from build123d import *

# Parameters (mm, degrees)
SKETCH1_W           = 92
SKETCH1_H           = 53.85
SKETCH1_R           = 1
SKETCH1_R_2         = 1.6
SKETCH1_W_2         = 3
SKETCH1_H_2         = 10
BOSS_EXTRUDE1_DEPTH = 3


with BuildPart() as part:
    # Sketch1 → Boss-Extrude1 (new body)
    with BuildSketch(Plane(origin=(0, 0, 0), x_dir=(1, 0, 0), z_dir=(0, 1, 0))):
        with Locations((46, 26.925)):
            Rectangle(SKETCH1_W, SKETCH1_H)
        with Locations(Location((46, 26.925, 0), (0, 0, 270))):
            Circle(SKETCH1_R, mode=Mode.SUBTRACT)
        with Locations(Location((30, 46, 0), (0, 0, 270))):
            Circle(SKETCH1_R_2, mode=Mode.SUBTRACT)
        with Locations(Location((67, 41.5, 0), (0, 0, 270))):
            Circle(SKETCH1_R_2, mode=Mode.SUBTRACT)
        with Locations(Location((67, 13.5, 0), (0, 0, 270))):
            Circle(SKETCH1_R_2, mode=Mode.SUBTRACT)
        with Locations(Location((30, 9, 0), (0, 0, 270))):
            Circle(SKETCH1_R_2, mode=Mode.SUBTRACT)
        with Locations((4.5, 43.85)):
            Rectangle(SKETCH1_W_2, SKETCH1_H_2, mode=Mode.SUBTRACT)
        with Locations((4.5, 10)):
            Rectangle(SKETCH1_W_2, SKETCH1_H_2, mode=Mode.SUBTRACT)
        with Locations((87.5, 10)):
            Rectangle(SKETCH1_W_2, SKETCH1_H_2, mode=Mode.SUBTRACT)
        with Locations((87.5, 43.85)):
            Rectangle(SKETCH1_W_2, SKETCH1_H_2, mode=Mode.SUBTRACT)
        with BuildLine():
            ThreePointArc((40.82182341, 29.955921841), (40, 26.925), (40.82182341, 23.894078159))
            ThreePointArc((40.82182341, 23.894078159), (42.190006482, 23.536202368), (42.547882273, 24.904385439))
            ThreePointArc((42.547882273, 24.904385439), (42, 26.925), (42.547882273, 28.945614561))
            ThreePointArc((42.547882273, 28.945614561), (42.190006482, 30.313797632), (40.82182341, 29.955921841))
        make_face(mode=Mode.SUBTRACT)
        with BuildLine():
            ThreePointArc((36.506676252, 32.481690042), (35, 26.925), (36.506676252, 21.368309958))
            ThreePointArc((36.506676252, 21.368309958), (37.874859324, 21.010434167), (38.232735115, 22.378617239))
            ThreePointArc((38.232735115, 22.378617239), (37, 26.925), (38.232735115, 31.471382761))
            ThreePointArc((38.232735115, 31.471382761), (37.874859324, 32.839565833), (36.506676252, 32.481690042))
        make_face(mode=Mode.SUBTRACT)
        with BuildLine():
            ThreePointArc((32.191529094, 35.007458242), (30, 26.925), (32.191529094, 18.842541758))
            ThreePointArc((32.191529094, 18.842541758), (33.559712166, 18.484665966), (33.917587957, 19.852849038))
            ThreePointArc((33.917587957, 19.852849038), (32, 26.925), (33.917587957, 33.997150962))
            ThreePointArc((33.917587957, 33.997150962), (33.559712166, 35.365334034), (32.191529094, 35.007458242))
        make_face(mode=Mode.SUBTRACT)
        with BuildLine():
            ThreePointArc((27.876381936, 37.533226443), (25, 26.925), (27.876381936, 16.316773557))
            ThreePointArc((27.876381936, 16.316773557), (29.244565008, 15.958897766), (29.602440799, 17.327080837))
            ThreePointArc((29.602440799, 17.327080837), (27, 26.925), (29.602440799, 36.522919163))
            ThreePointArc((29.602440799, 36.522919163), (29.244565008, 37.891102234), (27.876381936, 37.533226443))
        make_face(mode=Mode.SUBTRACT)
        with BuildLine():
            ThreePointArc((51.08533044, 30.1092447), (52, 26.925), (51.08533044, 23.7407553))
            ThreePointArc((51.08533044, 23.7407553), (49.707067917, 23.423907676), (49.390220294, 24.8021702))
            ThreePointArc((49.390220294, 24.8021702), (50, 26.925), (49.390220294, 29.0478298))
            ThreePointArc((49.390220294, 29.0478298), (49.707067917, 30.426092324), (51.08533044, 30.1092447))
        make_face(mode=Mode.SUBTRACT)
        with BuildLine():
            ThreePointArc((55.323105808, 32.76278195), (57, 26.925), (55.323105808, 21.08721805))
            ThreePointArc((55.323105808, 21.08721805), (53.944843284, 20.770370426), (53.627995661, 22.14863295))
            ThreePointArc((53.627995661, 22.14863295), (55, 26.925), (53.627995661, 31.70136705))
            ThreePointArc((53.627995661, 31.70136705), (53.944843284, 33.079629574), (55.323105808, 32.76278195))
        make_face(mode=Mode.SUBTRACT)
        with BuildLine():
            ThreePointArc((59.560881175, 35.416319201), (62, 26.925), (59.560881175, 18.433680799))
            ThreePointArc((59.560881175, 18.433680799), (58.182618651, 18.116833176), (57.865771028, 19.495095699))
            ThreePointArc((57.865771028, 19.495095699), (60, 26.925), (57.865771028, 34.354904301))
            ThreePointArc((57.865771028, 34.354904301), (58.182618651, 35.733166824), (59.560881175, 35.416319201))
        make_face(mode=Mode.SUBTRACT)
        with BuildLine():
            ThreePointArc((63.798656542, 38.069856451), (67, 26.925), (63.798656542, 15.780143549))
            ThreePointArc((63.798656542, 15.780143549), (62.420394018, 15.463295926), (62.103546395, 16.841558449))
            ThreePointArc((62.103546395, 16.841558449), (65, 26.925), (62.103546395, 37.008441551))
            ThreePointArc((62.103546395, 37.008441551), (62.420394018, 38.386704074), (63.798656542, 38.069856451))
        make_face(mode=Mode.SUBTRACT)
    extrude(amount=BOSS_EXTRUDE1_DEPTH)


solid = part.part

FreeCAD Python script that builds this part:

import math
import FreeCAD as App
import Part
import Sketcher


def add_polygon(sketch, points):
    """Adds a closed chain of lines whose ends are joined by coincident constraints."""
    first, n = sketch.GeometryCount, len(points)
    for a, b in zip(points, points[1:] + points[:1]):
        sketch.addGeometry(Part.LineSegment(App.Vector(*a, 0), App.Vector(*b, 0)), False)
    for i in range(n):
        sketch.addConstraint(Sketcher.Constraint("Coincident", first + i, 2, first + (i + 1) % n, 1))

doc = App.newDocument("Part")
body = doc.addObject("PartDesign::Body", "Body")

# Sketch on XZ plane
sketch1 = doc.addObject("Sketcher::SketchObject", "Sketch")
body.addObject(sketch1)
sketch1.AttachmentSupport = (doc.XZ_Plane, [""])
sketch1.MapMode = "FlatFace"
add_polygon(sketch1, [(0, -53.85), (0, 0), (92, 0), (92, -53.85)])  # lines 0-3
add_polygon(sketch1, [(6, -5), (3, -5), (3, -15), (6, -15)])  # lines 4-7
sketch1.addGeometry(Part.Circle(App.Vector(30, -9, 0), App.Vector(0, 0, 1), 1.6), False)  # 8
sketch1.addGeometry(Part.ArcOfCircle(Part.Circle(App.Vector(46, -26.925, 0), App.Vector(0, 0, 1), 11), math.radians(149.658448), math.radians(210.341552)), False)  # 9
sketch1.addGeometry(Part.ArcOfCircle(Part.Circle(App.Vector(37.369706, -31.976536, 0), App.Vector(0, 0, 1), 1), math.radians(-149.658448), math.radians(30.341552)), False)  # 10
sketch1.addGeometry(Part.ArcOfCircle(Part.Circle(App.Vector(46, -26.925, 0), App.Vector(0, 0, 1), 9), math.radians(149.658448), math.radians(210.341552)), False)  # 11
sketch1.addGeometry(Part.ArcOfCircle(Part.Circle(App.Vector(37.369706, -21.873464, 0), App.Vector(0, 0, 1), 1), math.radians(-30.341552), math.radians(149.658448)), False)  # 12
sketch1.addGeometry(Part.Circle(App.Vector(67, -13.5, 0), App.Vector(0, 0, 1), 1.6), False)  # 13
add_polygon(sketch1, [(89, -5), (86, -5), (86, -15), (89, -15)])  # lines 14-17
sketch1.addGeometry(Part.ArcOfCircle(Part.Circle(App.Vector(46, -26.925, 0), App.Vector(0, 0, 1), 21), math.radians(149.658448), math.radians(210.341552)), False)  # 18
sketch1.addGeometry(Part.ArcOfCircle(Part.Circle(App.Vector(28.739411, -37.028073, 0), App.Vector(0, 0, 1), 1), math.radians(-149.658448), math.radians(30.341552)), False)  # 19
sketch1.addGeometry(Part.ArcOfCircle(Part.Circle(App.Vector(46, -26.925, 0), App.Vector(0, 0, 1), 19), math.radians(149.658448), math.radians(210.341552)), False)  # 20
sketch1.addGeometry(Part.ArcOfCircle(Part.Circle(App.Vector(28.739411, -16.821927, 0), App.Vector(0, 0, 1), 1), math.radians(-30.341552), math.radians(149.658448)), False)  # 21
sketch1.addGeometry(Part.ArcOfCircle(Part.Circle(App.Vector(46, -26.925, 0), App.Vector(0, 0, 1), 16), math.radians(149.658448), math.radians(210.341552)), False)  # 22
sketch1.addGeometry(Part.ArcOfCircle(Part.Circle(App.Vector(33.054559, -34.502305, 0), App.Vector(0, 0, 1), 1), math.radians(-149.658448), math.radians(30.341552)), False)  # 23
sketch1.addGeometry(Part.ArcOfCircle(Part.Circle(App.Vector(46, -26.925, 0), App.Vector(0, 0, 1), 14), math.radians(149.658448), math.radians(210.341552)), False)  # 24
sketch1.addGeometry(Part.ArcOfCircle(Part.Circle(App.Vector(33.054559, -19.347695, 0), App.Vector(0, 0, 1), 1), math.radians(-30.341552), math.radians(149.658448)), False)  # 25
sketch1.addGeometry(Part.ArcOfCircle(Part.Circle(App.Vector(46, -26.925, 0), App.Vector(0, 0, 1), 6), math.radians(149.658448), math.radians(210.341552)), False)  # 26
sketch1.addGeometry(Part.ArcOfCircle(Part.Circle(App.Vector(41.684853, -29.450768, 0), App.Vector(0, 0, 1), 1), math.radians(-149.658448), math.radians(30.341552)), False)  # 27
sketch1.addGeometry(Part.ArcOfCircle(Part.Circle(App.Vector(46, -26.925, 0), App.Vector(0, 0, 1), 4), math.radians(149.658448), math.radians(210.341552)), False)  # 28
sketch1.addGeometry(Part.ArcOfCircle(Part.Circle(App.Vector(41.684853, -24.399232, 0), App.Vector(0, 0, 1), 1), math.radians(-30.341552), math.radians(149.658448)), False)  # 29
add_polygon(sketch1, [(6, -38.85), (3, -38.85), (3, -48.85), (6, -48.85)])  # lines 30-33
sketch1.addGeometry(Part.Circle(App.Vector(30, -46, 0), App.Vector(0, 0, 1), 1.6), False)  # 34
sketch1.addGeometry(Part.Circle(App.Vector(46, -26.925, 0), App.Vector(0, 0, 1), 1), False)  # 35
sketch1.addGeometry(Part.ArcOfCircle(Part.Circle(App.Vector(50.237775, -29.578537, 0), App.Vector(0, 0, 1), 1), math.radians(147.946733), math.radians(327.946733)), False)  # 36
sketch1.addGeometry(Part.ArcOfCircle(Part.Circle(App.Vector(46, -26.925, 0), App.Vector(0, 0, 1), 6), math.radians(-32.053267), math.radians(32.053267)), False)  # 37
sketch1.addGeometry(Part.ArcOfCircle(Part.Circle(App.Vector(50.237775, -24.271463, 0), App.Vector(0, 0, 1), 1), math.radians(32.053267), math.radians(212.053267)), False)  # 38
sketch1.addGeometry(Part.ArcOfCircle(Part.Circle(App.Vector(46, -26.925, 0), App.Vector(0, 0, 1), 4), math.radians(-32.053267), math.radians(32.053267)), False)  # 39
sketch1.addGeometry(Part.ArcOfCircle(Part.Circle(App.Vector(54.475551, -32.232075, 0), App.Vector(0, 0, 1), 1), math.radians(147.946733), math.radians(327.946733)), False)  # 40
sketch1.addGeometry(Part.ArcOfCircle(Part.Circle(App.Vector(46, -26.925, 0), App.Vector(0, 0, 1), 11), math.radians(-32.053267), math.radians(32.053267)), False)  # 41
sketch1.addGeometry(Part.ArcOfCircle(Part.Circle(App.Vector(54.475551, -21.617925, 0), App.Vector(0, 0, 1), 1), math.radians(32.053267), math.radians(212.053267)), False)  # 42
sketch1.addGeometry(Part.ArcOfCircle(Part.Circle(App.Vector(46, -26.925, 0), App.Vector(0, 0, 1), 9), math.radians(-32.053267), math.radians(32.053267)), False)  # 43
sketch1.addGeometry(Part.ArcOfCircle(Part.Circle(App.Vector(58.713326, -34.885612, 0), App.Vector(0, 0, 1), 1), math.radians(147.946733), math.radians(327.946733)), False)  # 44
sketch1.addGeometry(Part.ArcOfCircle(Part.Circle(App.Vector(46, -26.925, 0), App.Vector(0, 0, 1), 16), math.radians(-32.053267), math.radians(32.053267)), False)  # 45
sketch1.addGeometry(Part.ArcOfCircle(Part.Circle(App.Vector(58.713326, -18.964388, 0), App.Vector(0, 0, 1), 1), math.radians(32.053267), math.radians(212.053267)), False)  # 46
sketch1.addGeometry(Part.ArcOfCircle(Part.Circle(App.Vector(46, -26.925, 0), App.Vector(0, 0, 1), 14), math.radians(-32.053267), math.radians(32.053267)), False)  # 47
sketch1.addGeometry(Part.ArcOfCircle(Part.Circle(App.Vector(62.951101, -37.539149, 0), App.Vector(0, 0, 1), 1), math.radians(147.946733), math.radians(327.946733)), False)  # 48
sketch1.addGeometry(Part.ArcOfCircle(Part.Circle(App.Vector(46, -26.925, 0), App.Vector(0, 0, 1), 21), math.radians(-32.053267), math.radians(32.053267)), False)  # 49
sketch1.addGeometry(Part.ArcOfCircle(Part.Circle(App.Vector(62.951101, -16.310851, 0), App.Vector(0, 0, 1), 1), math.radians(32.053267), math.radians(212.053267)), False)  # 50
sketch1.addGeometry(Part.ArcOfCircle(Part.Circle(App.Vector(46, -26.925, 0), App.Vector(0, 0, 1), 19), math.radians(-32.053267), math.radians(32.053267)), False)  # 51
sketch1.addGeometry(Part.Circle(App.Vector(67, -41.5, 0), App.Vector(0, 0, 1), 1.6), False)  # 52
add_polygon(sketch1, [(89, -38.85), (86, -38.85), (86, -48.85), (89, -48.85)])  # lines 53-56
sketch1.addConstraint([
    Sketcher.Constraint("Tangent", 9, 2, 10, 1),
    Sketcher.Constraint("Tangent", 10, 2, 11, 2),
    Sketcher.Constraint("Tangent", 11, 1, 12, 1),
    Sketcher.Constraint("Tangent", 12, 2, 9, 1),
    Sketcher.Constraint("Tangent", 18, 2, 19, 1),
    Sketcher.Constraint("Tangent", 19, 2, 20, 2),
    Sketcher.Constraint("Tangent", 20, 1, 21, 1),
    Sketcher.Constraint("Tangent", 21, 2, 18, 1),
    Sketcher.Constraint("Tangent", 22, 2, 23, 1),
    Sketcher.Constraint("Tangent", 23, 2, 24, 2),
    Sketcher.Constraint("Tangent", 24, 1, 25, 1),
    Sketcher.Constraint("Tangent", 25, 2, 22, 1),
    Sketcher.Constraint("Tangent", 26, 2, 27, 1),
    Sketcher.Constraint("Tangent", 27, 2, 28, 2),
    Sketcher.Constraint("Tangent", 28, 1, 29, 1),
    Sketcher.Constraint("Tangent", 29, 2, 26, 1),
    Sketcher.Constraint("Tangent", 36, 2, 37, 1),
    Sketcher.Constraint("Tangent", 37, 2, 38, 1),
    Sketcher.Constraint("Tangent", 38, 2, 39, 2),
    Sketcher.Constraint("Tangent", 39, 1, 36, 1),
    Sketcher.Constraint("Tangent", 40, 2, 41, 1),
    Sketcher.Constraint("Tangent", 41, 2, 42, 1),
    Sketcher.Constraint("Tangent", 42, 2, 43, 2),
    Sketcher.Constraint("Tangent", 43, 1, 40, 1),
    Sketcher.Constraint("Tangent", 44, 2, 45, 1),
    Sketcher.Constraint("Tangent", 45, 2, 46, 1),
    Sketcher.Constraint("Tangent", 46, 2, 47, 2),
    Sketcher.Constraint("Tangent", 47, 1, 44, 1),
    Sketcher.Constraint("Tangent", 48, 2, 49, 1),
    Sketcher.Constraint("Tangent", 49, 2, 50, 1),
    Sketcher.Constraint("Tangent", 50, 2, 51, 2),
    Sketcher.Constraint("Tangent", 51, 1, 48, 1),
    Sketcher.Constraint("Vertical", 0),
    Sketcher.Constraint("Horizontal", 1),
    Sketcher.Constraint("Vertical", 2),
    Sketcher.Constraint("Horizontal", 3),
    Sketcher.Constraint("Horizontal", 4),
    Sketcher.Constraint("Vertical", 5),
    Sketcher.Constraint("Horizontal", 6),
    Sketcher.Constraint("Vertical", 7),
    Sketcher.Constraint("Horizontal", 14),
    Sketcher.Constraint("Vertical", 15),
    Sketcher.Constraint("Horizontal", 16),
    Sketcher.Constraint("Vertical", 17),
    Sketcher.Constraint("Horizontal", 30),
    Sketcher.Constraint("Vertical", 31),
    Sketcher.Constraint("Horizontal", 32),
    Sketcher.Constraint("Vertical", 33),
    Sketcher.Constraint("Horizontal", 53),
    Sketcher.Constraint("Vertical", 54),
    Sketcher.Constraint("Horizontal", 55),
    Sketcher.Constraint("Vertical", 56),
    Sketcher.Constraint("Coincident", 0, 2, -1, 1),
    Sketcher.Constraint("Coincident", 11, 3, 9, 3),
    Sketcher.Constraint("Coincident", 18, 3, 9, 3),
    Sketcher.Constraint("Coincident", 20, 3, 9, 3),
    Sketcher.Constraint("Coincident", 22, 3, 9, 3),
    Sketcher.Constraint("Coincident", 24, 3, 9, 3),
    Sketcher.Constraint("Coincident", 26, 3, 9, 3),
    Sketcher.Constraint("Coincident", 28, 3, 9, 3),
    Sketcher.Constraint("Coincident", 35, 3, 9, 3),
    Sketcher.Constraint("Coincident", 37, 3, 9, 3),
    Sketcher.Constraint("Coincident", 39, 3, 9, 3),
    Sketcher.Constraint("Coincident", 41, 3, 9, 3),
    Sketcher.Constraint("Coincident", 43, 3, 9, 3),
    Sketcher.Constraint("Coincident", 45, 3, 9, 3),
    Sketcher.Constraint("Coincident", 47, 3, 9, 3),
    Sketcher.Constraint("Coincident", 49, 3, 9, 3),
    Sketcher.Constraint("Coincident", 51, 3, 9, 3),
    Sketcher.Constraint("Equal", 8, 13),
    Sketcher.Constraint("Equal", 12, 19),
    Sketcher.Constraint("Equal", 21, 23),
    Sketcher.Constraint("Equal", 25, 27),
    Sketcher.Constraint("Equal", 13, 34),
    Sketcher.Constraint("Equal", 29, 35),
    Sketcher.Constraint("Equal", 35, 36),
    Sketcher.Constraint("Equal", 26, 37),
    Sketcher.Constraint("Equal", 38, 40),
    Sketcher.Constraint("Equal", 9, 41),
    Sketcher.Constraint("Equal", 42, 44),
    Sketcher.Constraint("Equal", 22, 45),
    Sketcher.Constraint("Equal", 46, 48),
    Sketcher.Constraint("Equal", 18, 49),
    Sketcher.Constraint("Equal", 34, 52),
    Sketcher.Constraint("Horizontal", 7, 2, 14, 2),
    Sketcher.Constraint("Horizontal", 6, 2, 15, 2),
    Sketcher.Constraint("Horizontal", 33, 2, 53, 2),
    Sketcher.Constraint("Horizontal", 32, 2, 54, 2),
    Sketcher.Constraint("Vertical", 10, 3, 12, 3),
    Sketcher.Constraint("Vertical", 19, 3, 21, 3),
    Sketcher.Constraint("Vertical", 23, 3, 25, 3),
    Sketcher.Constraint("Vertical", 27, 3, 29, 3),
    Sketcher.Constraint("Vertical", 8, 3, 34, 3),
    Sketcher.Constraint("Vertical", 36, 3, 38, 3),
    Sketcher.Constraint("Vertical", 40, 3, 42, 3),
    Sketcher.Constraint("Vertical", 44, 3, 46, 3),
    Sketcher.Constraint("Vertical", 48, 3, 50, 3),
    Sketcher.Constraint("Vertical", 13, 3, 52, 3),
    Sketcher.Constraint("Vertical", 5, 2, 30, 2),
    Sketcher.Constraint("Vertical", 7, 2, 32, 2),
    Sketcher.Constraint("Vertical", 15, 2, 53, 2),
    Sketcher.Constraint("Vertical", 17, 2, 55, 2),
    Sketcher.Constraint("Equal", 6, 14),
    Sketcher.Constraint("Equal", 17, 31),
    Sketcher.Constraint("Diameter", 35, 2.0),
    Sketcher.Constraint("Radius", 9, 11.0),
    Sketcher.Constraint("Radius", 18, 21.0),
    Sketcher.Constraint("Radius", 22, 16.0),
    Sketcher.Constraint("Radius", 26, 6.0),
    Sketcher.Constraint("Diameter", 8, 3.2),
    Sketcher.Constraint("DistanceX", 1, 1, 1, 2, 92.0),
    Sketcher.Constraint("DistanceX", 4, 2, 4, 1, 3.0),
    Sketcher.Constraint("DistanceY", 5, 2, 5, 1, 10.0),
    Sketcher.Constraint("DistanceX", -1, 1, 8, 3, 30.0),
    Sketcher.Constraint("DistanceY", 8, 3, -1, 1, 9.0),
    Sketcher.Constraint("DistanceX", -1, 1, 9, 3, 46.0),
    Sketcher.Constraint("DistanceX", -1, 1, 13, 3, 67.0),
    Sketcher.Constraint("DistanceY", 34, 3, -1, 1, 46.0),
    Sketcher.Constraint("DistanceX", -1, 1, 4, 2, 3.0),
    Sketcher.Constraint("DistanceY", 4, 2, -1, 1, 5.0),
    Sketcher.Constraint("DistanceX", -1, 1, 14, 2, 86.0),
    Sketcher.Constraint("DistanceY", 0, 1, 0, 2, 53.85),
    Sketcher.Constraint("DistanceY", 13, 3, -1, 1, 13.5),
    Sketcher.Constraint("DistanceY", 52, 3, -1, 1, 41.5),
    Sketcher.Constraint("DistanceY", 30, 2, -1, 1, 38.85),
    Sketcher.Constraint("DistanceY", 9, 3, -1, 1, 26.925),
    Sketcher.Constraint("DistanceX", -1, 1, 48, 3, 62.951101),
    Sketcher.Constraint("DistanceX", -1, 1, 19, 3, 28.739411),
    Sketcher.Constraint("DistanceX", -1, 1, 23, 3, 33.054559),
    Sketcher.Constraint("DistanceY", 27, 3, -1, 1, 29.450768),
    Sketcher.Constraint("DistanceX", -1, 1, 40, 3, 54.475551),
    Sketcher.Constraint("DistanceY", 44, 3, -1, 1, 34.885612),
    Sketcher.Constraint("DistanceY", 9, 2, -1, 1, 32.48169),
    Sketcher.Constraint("DistanceX", -1, 1, 36, 2, 51.08533),
])
pad1 = doc.addObject("PartDesign::Pad", "Pad")
body.addObject(pad1)
pad1.Profile = sketch1
pad1.Length = 3
pad1.Reversed = True

doc.recompute()
